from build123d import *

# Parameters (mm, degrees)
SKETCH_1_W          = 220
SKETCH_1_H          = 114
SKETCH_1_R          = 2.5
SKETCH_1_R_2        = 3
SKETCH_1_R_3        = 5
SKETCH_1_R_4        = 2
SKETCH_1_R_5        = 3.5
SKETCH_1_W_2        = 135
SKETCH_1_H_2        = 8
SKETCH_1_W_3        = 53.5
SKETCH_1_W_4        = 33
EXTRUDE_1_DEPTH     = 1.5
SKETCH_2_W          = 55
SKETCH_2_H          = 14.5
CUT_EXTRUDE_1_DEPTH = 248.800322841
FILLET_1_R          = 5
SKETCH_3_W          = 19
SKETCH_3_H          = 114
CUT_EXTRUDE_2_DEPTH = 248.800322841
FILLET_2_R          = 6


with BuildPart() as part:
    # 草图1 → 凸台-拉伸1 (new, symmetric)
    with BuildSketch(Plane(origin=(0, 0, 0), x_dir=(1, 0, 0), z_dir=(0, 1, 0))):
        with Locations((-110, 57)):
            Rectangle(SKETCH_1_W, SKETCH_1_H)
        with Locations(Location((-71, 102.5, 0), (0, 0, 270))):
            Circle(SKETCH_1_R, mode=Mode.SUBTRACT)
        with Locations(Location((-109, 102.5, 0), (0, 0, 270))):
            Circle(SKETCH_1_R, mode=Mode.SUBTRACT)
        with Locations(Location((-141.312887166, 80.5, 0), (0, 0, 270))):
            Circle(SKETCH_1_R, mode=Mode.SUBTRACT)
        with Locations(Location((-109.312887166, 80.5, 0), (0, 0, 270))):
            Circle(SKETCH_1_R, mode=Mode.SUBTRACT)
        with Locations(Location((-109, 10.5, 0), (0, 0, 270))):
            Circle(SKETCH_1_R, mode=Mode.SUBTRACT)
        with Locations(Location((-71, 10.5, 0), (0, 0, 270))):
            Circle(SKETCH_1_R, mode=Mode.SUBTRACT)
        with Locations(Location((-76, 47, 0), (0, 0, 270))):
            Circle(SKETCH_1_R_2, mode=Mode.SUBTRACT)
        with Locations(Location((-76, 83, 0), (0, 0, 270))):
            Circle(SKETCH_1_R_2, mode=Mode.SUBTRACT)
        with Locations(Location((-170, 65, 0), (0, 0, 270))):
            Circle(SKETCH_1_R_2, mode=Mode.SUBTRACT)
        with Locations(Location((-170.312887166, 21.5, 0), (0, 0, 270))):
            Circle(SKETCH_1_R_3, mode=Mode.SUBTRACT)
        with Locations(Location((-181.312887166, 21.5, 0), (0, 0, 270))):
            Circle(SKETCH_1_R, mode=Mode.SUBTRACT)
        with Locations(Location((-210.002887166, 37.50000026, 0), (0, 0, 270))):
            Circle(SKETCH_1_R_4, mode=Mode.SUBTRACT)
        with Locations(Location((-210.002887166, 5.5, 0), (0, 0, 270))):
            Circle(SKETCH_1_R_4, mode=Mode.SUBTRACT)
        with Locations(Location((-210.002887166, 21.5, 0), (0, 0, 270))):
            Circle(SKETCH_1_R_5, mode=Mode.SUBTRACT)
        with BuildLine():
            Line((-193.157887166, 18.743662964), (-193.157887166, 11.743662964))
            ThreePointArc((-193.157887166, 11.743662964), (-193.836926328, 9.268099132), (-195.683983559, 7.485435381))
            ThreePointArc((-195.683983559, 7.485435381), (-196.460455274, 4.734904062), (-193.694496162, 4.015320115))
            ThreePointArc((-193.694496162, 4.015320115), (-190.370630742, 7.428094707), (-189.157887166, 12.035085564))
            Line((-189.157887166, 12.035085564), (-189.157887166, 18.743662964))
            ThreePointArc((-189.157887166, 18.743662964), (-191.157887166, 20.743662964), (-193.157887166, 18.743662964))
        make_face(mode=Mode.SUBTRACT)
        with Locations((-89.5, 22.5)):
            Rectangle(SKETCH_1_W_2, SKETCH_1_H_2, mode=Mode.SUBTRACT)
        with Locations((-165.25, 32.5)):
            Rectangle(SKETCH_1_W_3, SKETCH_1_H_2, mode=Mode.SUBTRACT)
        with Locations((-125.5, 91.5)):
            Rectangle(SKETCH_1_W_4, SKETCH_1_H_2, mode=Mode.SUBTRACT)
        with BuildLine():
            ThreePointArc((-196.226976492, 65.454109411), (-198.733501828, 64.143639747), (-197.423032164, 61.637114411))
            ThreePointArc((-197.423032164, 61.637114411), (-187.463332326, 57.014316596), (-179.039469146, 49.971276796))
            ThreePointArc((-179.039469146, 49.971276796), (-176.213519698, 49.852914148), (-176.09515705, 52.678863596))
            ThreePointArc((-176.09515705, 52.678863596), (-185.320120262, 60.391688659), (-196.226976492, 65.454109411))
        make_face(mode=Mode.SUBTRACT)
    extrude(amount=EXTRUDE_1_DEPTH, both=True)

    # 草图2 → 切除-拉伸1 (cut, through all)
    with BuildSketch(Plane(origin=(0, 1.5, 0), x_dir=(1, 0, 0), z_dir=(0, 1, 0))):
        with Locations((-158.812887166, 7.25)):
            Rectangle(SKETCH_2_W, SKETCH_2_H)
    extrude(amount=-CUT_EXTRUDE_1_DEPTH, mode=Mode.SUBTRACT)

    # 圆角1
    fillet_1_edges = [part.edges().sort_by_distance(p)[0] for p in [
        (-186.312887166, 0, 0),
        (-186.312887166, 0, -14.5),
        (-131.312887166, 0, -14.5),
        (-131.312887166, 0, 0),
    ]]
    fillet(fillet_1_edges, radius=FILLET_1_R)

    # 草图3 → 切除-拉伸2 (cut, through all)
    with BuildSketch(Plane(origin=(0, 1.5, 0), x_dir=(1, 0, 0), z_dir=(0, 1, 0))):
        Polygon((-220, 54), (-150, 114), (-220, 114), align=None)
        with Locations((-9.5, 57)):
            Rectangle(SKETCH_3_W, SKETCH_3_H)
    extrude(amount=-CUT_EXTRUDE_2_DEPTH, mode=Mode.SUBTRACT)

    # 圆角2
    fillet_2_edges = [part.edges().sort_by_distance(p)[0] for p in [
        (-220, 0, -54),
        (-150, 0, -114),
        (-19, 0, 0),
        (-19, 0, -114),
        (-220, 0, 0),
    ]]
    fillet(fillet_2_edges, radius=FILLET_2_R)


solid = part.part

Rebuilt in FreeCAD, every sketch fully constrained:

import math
import FreeCAD as App
import Part
import Sketcher
from FreeCAD import Vector


def edges_at(feature, points):
    """Names of the edges that pass closest to the given points."""
    edges = feature.Shape.Edges
    near = lambda p: min(range(len(edges)), key=lambda i: edges[i].distToShape(Part.Vertex(*p))[0])
    return sorted({f"Edge{near(p) + 1}" for p in points})

doc = App.newDocument("Part")
params = doc.addObject("Spreadsheet::Sheet", "Params")
for row, (alias, value) in enumerate([
    ("sketch1_diameter", "4 mm"),
    ("sketch1_diameter2", "7 mm"),
    ("sketch1_diameter3", "5 mm"),
    ("sketch1_diameter4", "10 mm"),
    ("sketch1_diameter5", "6 mm"),
    ("pad1_length", "3 mm"),
    ("sketch2_width", "55 mm"),
    ("sketch2_height", "14.5 mm"),
    ("fillet_radius", "5 mm"),
    ("sketch3_width", "70 mm"),
    ("sketch3_width2", "19 mm"),
    ("sketch3_height", "60 mm"),
    ("sketch3_height2", "114 mm"),
    ("fillet2_radius", "6 mm"),
], start=1):
    params.set(f"A{row}", alias)
    params.set(f"B{row}", "=" + value)
    params.setAlias(f"B{row}", alias)

body = doc.addObject("PartDesign::Body", "Body")

# Sketch on XZ plane
sketch1 = body.newObject("Sketcher::SketchObject", "Sketch")
sketch1.AttachmentSupport = (doc.getObject("XZ_Plane"), [""])
sketch1.MapMode = "FlatFace"
sketch1.addGeometry([
    Part.LineSegment(Vector(-220, -114, 0), Vector(-220, 0, 0)),  # 0
    Part.LineSegment(Vector(-220, 0, 0), Vector(0, 0, 0)),  # 1
    Part.LineSegment(Vector(0, 0, 0), Vector(0, -114, 0)),  # 2
    Part.LineSegment(Vector(0, -114, 0), Vector(-220, -114, 0)),  # 3
    Part.Circle(Vector(-210.002887, -5.5, 0), Vector(0, 0, 1), 2),  # 4
    Part.LineSegment(Vector(-193.157887, -11.743663, 0), Vector(-193.157887, -18.743663, 0)),  # 5
    Part.ArcOfCircle(Part.Circle(Vector(-191.157887, -18.743663, 0), Vector(0, 0, 1), 2), math.radians(180), math.radians(360)),  # 6
    Part.LineSegment(Vector(-189.157887, -18.743663, 0), Vector(-189.157887, -12.035086, 0)),  # 7
    Part.ArcOfCircle(Part.Circle(Vector(-198.514816, -12.035086, 0), Vector(0, 0, 1), 9.356929), math.radians(0), math.radians(58.991817)),  # 8
    Part.ArcOfCircle(Part.Circle(Vector(-194.725029, -5.729859, 0), Vector(0, 0, 1), 2.00041), math.radians(58.991817), math.radians(241.355141)),  # 9
    Part.ArcOfCircle(Part.Circle(Vector(-198.009971, -11.743663, 0), Vector(0, 0, 1), 4.852084), math.radians(0), math.radians(61.355141)),  # 10
    Part.Circle(Vector(-210.002887, -21.5, 0), Vector(0, 0, 1), 3.5),  # 11
    Part.Circle(Vector(-181.312887, -21.5, 0), Vector(0, 0, 1), 2.5),  # 12
    Part.Circle(Vector(-170.312887, -21.5, 0), Vector(0, 0, 1), 5),  # 13
    Part.Circle(Vector(-210.002887, -37.5, 0), Vector(0, 0, 1), 2),  # 14
    Part.LineSegment(Vector(-138.5, -28.5, 0), Vector(-192, -28.5, 0)),  # 15
    Part.LineSegment(Vector(-192, -28.5, 0), Vector(-192, -36.5, 0)),  # 16
    Part.LineSegment(Vector(-192, -36.5, 0), Vector(-138.5, -36.5, 0)),  # 17
    Part.LineSegment(Vector(-138.5, -36.5, 0), Vector(-138.5, -28.5, 0)),  # 18
    Part.Circle(Vector(-109, -10.5, 0), Vector(0, 0, 1), 2.5),  # 19
    Part.Circle(Vector(-71, -10.5, 0), Vector(0, 0, 1), 2.5),  # 20
    Part.LineSegment(Vector(-22, -18.5, 0), Vector(-157, -18.5, 0)),  # 21
    Part.LineSegment(Vector(-157, -18.5, 0), Vector(-157, -26.5, 0)),  # 22
    Part.LineSegment(Vector(-157, -26.5, 0), Vector(-22, -26.5, 0)),  # 23
    Part.LineSegment(Vector(-22, -26.5, 0), Vector(-22, -18.5, 0)),  # 24
    Part.Circle(Vector(-76, -47, 0), Vector(0, 0, 1), 3),  # 25
    Part.ArcOfCircle(Part.Circle(Vector(-196.825004, -63.545612, 0), Vector(0, 0, 1), 2), math.radians(107.398386), math.radians(287.398386)),  # 26
    Part.ArcOfCircle(Part.Circle(Vector(-210, -21.5, 0), Vector(0, 0, 1), 46.06148), math.radians(-72.601614), math.radians(-42.601614)),  # 27
    Part.ArcOfCircle(Part.Circle(Vector(-177.567313, -51.32507, 0), Vector(0, 0, 1), 2), math.radians(-42.601614), math.radians(137.398386)),  # 28
    Part.ArcOfCircle(Part.Circle(Vector(-210, -21.5, 0), Vector(0, 0, 1), 42.06148), math.radians(-72.601614), math.radians(-42.601614)),  # 29
    Part.Circle(Vector(-170, -65, 0), Vector(0, 0, 1), 3),  # 30
    Part.Circle(Vector(-141.312887, -80.5, 0), Vector(0, 0, 1), 2.5),  # 31
    Part.LineSegment(Vector(-109, -87.5, 0), Vector(-142, -87.5, 0)),  # 32
    Part.LineSegment(Vector(-142, -87.5, 0), Vector(-142, -95.5, 0)),  # 33
    Part.LineSegment(Vector(-142, -95.5, 0), Vector(-109, -95.5, 0)),  # 34
    Part.LineSegment(Vector(-109, -95.5, 0), Vector(-109, -87.5, 0)),  # 35
    Part.Circle(Vector(-109.312887, -80.5, 0), Vector(0, 0, 1), 2.5),  # 36
    Part.Circle(Vector(-76, -83, 0), Vector(0, 0, 1), 3),  # 37
    Part.Circle(Vector(-109, -102.5, 0), Vector(0, 0, 1), 2.5),  # 38
    Part.Circle(Vector(-71, -102.5, 0), Vector(0, 0, 1), 2.5),  # 39
], False)
sketch1.addConstraint([
    Sketcher.Constraint("Coincident", 0, 2, 1, 1),
    Sketcher.Constraint("Coincident", 1, 2, 2, 1),
    Sketcher.Constraint("Coincident", 2, 2, 3, 1),
    Sketcher.Constraint("Coincident", 3, 2, 0, 1),
    Sketcher.Constraint("Tangent", 5, 2, 6, 1),
    Sketcher.Constraint("Tangent", 6, 2, 7, 1),
    Sketcher.Constraint("Tangent", 7, 2, 8, 1),
    Sketcher.Constraint("Tangent", 8, 2, 9, 1),
    Sketcher.Constraint("Tangent", 9, 2, 10, 2),
    Sketcher.Constraint("Tangent", 10, 1, 5, 1),
    Sketcher.Constraint("Coincident", 15, 2, 16, 1),
    Sketcher.Constraint("Coincident", 16, 2, 17, 1),
    Sketcher.Constraint("Coincident", 17, 2, 18, 1),
    Sketcher.Constraint("Coincident", 18, 2, 15, 1),
    Sketcher.Constraint("Coincident", 21, 2, 22, 1),
    Sketcher.Constraint("Coincident", 22, 2, 23, 1),
    Sketcher.Constraint("Coincident", 23, 2, 24, 1),
    Sketcher.Constraint("Coincident", 24, 2, 21, 1),
    Sketcher.Constraint("Tangent", 26, 2, 27, 1),
    Sketcher.Constraint("Tangent", 27, 2, 28, 1),
    Sketcher.Constraint("Tangent", 28, 2, 29, 2),
    Sketcher.Constraint("Tangent", 29, 1, 26, 1),
    Sketcher.Constraint("Coincident", 32, 2, 33, 1),
    Sketcher.Constraint("Coincident", 33, 2, 34, 1),
    Sketcher.Constraint("Coincident", 34, 2, 35, 1),
    Sketcher.Constraint("Coincident", 35, 2, 32, 1),
    Sketcher.Constraint("Vertical", 0),
    Sketcher.Constraint("Horizontal", 1),
    Sketcher.Constraint("Vertical", 2),
    Sketcher.Constraint("Horizontal", 3),
    Sketcher.Constraint("Vertical", 5),
    Sketcher.Constraint("Vertical", 7),
    Sketcher.Constraint("Horizontal", 15),
    Sketcher.Constraint("Vertical", 16),
    Sketcher.Constraint("Horizontal", 17),
    Sketcher.Constraint("Vertical", 18),
    Sketcher.Constraint("Horizontal", 21),
    Sketcher.Constraint("Vertical", 22),
    Sketcher.Constraint("Horizontal", 23),
    Sketcher.Constraint("Vertical", 24),
    Sketcher.Constraint("Horizontal", 32),
    Sketcher.Constraint("Vertical", 33),
    Sketcher.Constraint("Horizontal", 34),
    Sketcher.Constraint("Vertical", 35),
    Sketcher.Constraint("Coincident", 1, 2, -1, 1),
    Sketcher.Constraint("Coincident", 29, 3, 27, 3),
    Sketcher.Constraint("Equal", 4, 6),
    Sketcher.Constraint("Equal", 6, 14),
    Sketcher.Constraint("Equal", 12, 19),
    Sketcher.Constraint("Equal", 19, 20),
    Sketcher.Constraint("Equal", 14, 26),
    Sketcher.Constraint("Equal", 25, 30),
    Sketcher.Constraint("Equal", 20, 31),
    Sketcher.Constraint("Equal", 31, 36),
    Sketcher.Constraint("Equal", 30, 37),
    Sketcher.Constraint("Equal", 36, 38),
    Sketcher.Constraint("Equal", 38, 39),
    Sketcher.Constraint("Horizontal", 11, 3, 12, 3),
    Sketcher.Constraint("Horizontal", 12, 3, 13, 3),
    Sketcher.Constraint("Horizontal", 19, 3, 20, 3),
    Sketcher.Constraint("Horizontal", 13, 3, 27, 3),
    Sketcher.Constraint("Horizontal", 31, 3, 36, 3),
    Sketcher.Constraint("Horizontal", 38, 3, 39, 3),
    Sketcher.Constraint("Vertical", 4, 3, 11, 3),
    Sketcher.Constraint("Vertical", 11, 3, 14, 3),
    Sketcher.Constraint("Vertical", 25, 3, 37, 3),
    Sketcher.Constraint("Vertical", 19, 3, 38, 3),
    Sketcher.Constraint("Vertical", 20, 3, 39, 3),
    Sketcher.Constraint("Vertical", 38, 3, 34, 2),
    Sketcher.Constraint("Equal", 18, 22),
    Sketcher.Constraint("Equal", 24, 33),
    Sketcher.Constraint("Diameter", 4, 4.0),
    Sketcher.Constraint("Diameter", 11, 7.0),
    Sketcher.Constraint("Diameter", 12, 5.0),
    Sketcher.Constraint("Diameter", 13, 10.0),
    Sketcher.Constraint("Diameter", 25, 6.0),
    Sketcher.Constraint("DistanceX", 1, 1, 1, 2, 220.0),
    Sketcher.Constraint("DistanceX", 21, 2, 21, 1, 135.0),
    Sketcher.Constraint("DistanceX", 32, 2, 32, 1, 33.0),
    Sketcher.Constraint("DistanceY", 0, 1, 0, 2, 114.0),
    Sketcher.Constraint("DistanceY", 5, 2, 5, 1, 7.0),
    Sketcher.Constraint("DistanceY", 16, 2, 16, 1, 8.0),
    Sketcher.Constraint("DistanceX", 15, 2, 15, 1, 53.5),
    Sketcher.Constraint("DistanceX", 19, 3, -1, 1, 109.0),
    Sketcher.Constraint("DistanceX", 20, 3, -1, 1, 71.0),
    Sketcher.Constraint("DistanceX", 25, 3, -1, 1, 76.0),
    Sketcher.Constraint("DistanceY", 25, 3, -1, 1, 47.0),
    Sketcher.Constraint("DistanceX", 27, 3, -1, 1, 210.0),
    Sketcher.Constraint("DistanceX", 30, 3, -1, 1, 170.0),
    Sketcher.Constraint("DistanceY", 30, 3, -1, 1, 65.0),
    Sketcher.Constraint("DistanceY", 37, 3, -1, 1, 83.0),
    Sketcher.Constraint("DistanceX", 15, 2, -1, 1, 192.0),
    Sketcher.Constraint("DistanceX", 21, 2, -1, 1, 157.0),
    Sketcher.Constraint("DistanceY", 11, 3, 4, 3, 16.0),
    Sketcher.Constraint("DistanceX", 12, 3, 13, 3, 11.0),
    Sketcher.Constraint("DistanceY", 14, 3, 11, 3, 16.0),
    Sketcher.Constraint("DistanceY", 13, 3, 19, 3, 11.0),
    Sketcher.Constraint("DistanceX", 13, 3, 31, 3, 29.0),
    Sketcher.Constraint("DistanceY", 31, 3, 13, 3, 59.0),
    Sketcher.Constraint("DistanceX", 31, 3, 36, 3, 32.0),
    Sketcher.Constraint("DistanceY", 38, 3, 36, 3, 22.0),
    Sketcher.Constraint("DistanceY", 15, 2, 12, 3, 7.0),
    Sketcher.Constraint("DistanceY", 13, 3, 21, 2, 3.0),
    Sketcher.Constraint("DistanceY", 32, 2, 31, 3, 7.0),
    Sketcher.Constraint("DistanceY", 4, 3, -1, 1, 5.5),
    Sketcher.Constraint("Radius", 8, 9.356929),
    Sketcher.Constraint("Radius", 9, 2.00041),
    Sketcher.Constraint("Radius", 27, 46.06148),
    Sketcher.Constraint("DistanceX", 11, 3, 12, 3, 28.69),
    Sketcher.Constraint("Radius", 10, 4.852084),
    Sketcher.Constraint("DistanceX", 4, 3, 6, 3, 18.845),
    Sketcher.Constraint("DistanceY", 7, 1, 7, 2, 6.708577),
    Sketcher.Constraint("DistanceX", 9, 3, -1, 1, 194.725029),
    Sketcher.Constraint("DistanceY", 9, 3, -1, 1, 5.729859),
    Sketcher.Constraint("DistanceY", 26, 3, -1, 1, 63.545612),
    Sketcher.Constraint("DistanceY", 28, 3, -1, 1, 51.32507),
])
sketch1.setExpression("Constraints[71]", "Params.sketch1_diameter")
sketch1.setExpression("Constraints[72]", "Params.sketch1_diameter2")
sketch1.setExpression("Constraints[73]", "Params.sketch1_diameter3")
sketch1.setExpression("Constraints[74]", "Params.sketch1_diameter4")
sketch1.setExpression("Constraints[75]", "Params.sketch1_diameter5")
pad1 = body.newObject("PartDesign::Pad", "Pad")
pad1.Profile = sketch1
pad1.setExpression("Length", "Params.pad1_length")
pad1.Midplane = True

# Sketch on XZ plane
sketch2 = body.newObject("Sketcher::SketchObject", "Sketch001")
sketch2.AttachmentSupport = (doc.getObject("XZ_Plane"), [""])
sketch2.MapMode = "FlatFace"
sketch2.AttachmentOffset = App.Placement(Vector(0, 0, -1.5), App.Rotation())
sketch2.addGeometry([
    Part.LineSegment(Vector(-186.312887, -14.5, 0), Vector(-186.312887, 0, 0)),
    Part.LineSegment(Vector(-186.312887, 0, 0), Vector(-131.312887, 0, 0)),
    Part.LineSegment(Vector(-131.312887, 0, 0), Vector(-131.312887, -14.5, 0)),
    Part.LineSegment(Vector(-131.312887, -14.5, 0), Vector(-186.312887, -14.5, 0)),
], False)
sketch2.addConstraint([
    Sketcher.Constraint("Coincident", 0, 2, 1, 1),
    Sketcher.Constraint("Coincident", 1, 2, 2, 1),
    Sketcher.Constraint("Coincident", 2, 2, 3, 1),
    Sketcher.Constraint("Coincident", 3, 2, 0, 1),
    Sketcher.Constraint("Vertical", 0),
    Sketcher.Constraint("Horizontal", 1),
    Sketcher.Constraint("Vertical", 2),
    Sketcher.Constraint("Horizontal", 3),
    Sketcher.Constraint("PointOnObject", 0, 2, -1),
    Sketcher.Constraint("DistanceX", 1, 1, 1, 2, 55.0),
    Sketcher.Constraint("DistanceY", 0, 1, 0, 2, 14.5),
    Sketcher.Constraint("DistanceX", 0, 2, -1, 1, 186.312887),
])
sketch2.setExpression("Constraints[9]", "Params.sketch2_width")
sketch2.setExpression("Constraints[10]", "Params.sketch2_height")
pocket1 = body.newObject("PartDesign::Pocket", "Pocket")
pocket1.Profile = sketch2
pocket1.Type = "ThroughAll"
pocket1.Reversed = True
doc.recompute()

fillet = body.newObject("PartDesign::Fillet", "Fillet")
fillet.Base = (pocket1, edges_at(pocket1, [
    (-186.313, 0, 0),
    (-186.313, 0, -14.5),
    (-131.313, 0, -14.5),
    (-131.313, 0, 0),
]))
fillet.setExpression("Radius", "Params.fillet_radius")

# Sketch on XZ plane
sketch3 = body.newObject("Sketcher::SketchObject", "Sketch002")
sketch3.AttachmentSupport = (doc.getObject("XZ_Plane"), [""])
sketch3.MapMode = "FlatFace"
sketch3.AttachmentOffset = App.Placement(Vector(0, 0, -1.5), App.Rotation())
sketch3.addGeometry([
    Part.LineSegment(Vector(-220, -54, 0), Vector(-150, -114, 0)),  # 0
    Part.LineSegment(Vector(-150, -114, 0), Vector(-220, -114, 0)),  # 1
    Part.LineSegment(Vector(-220, -114, 0), Vector(-220, -54, 0)),  # 2
    Part.LineSegment(Vector(-19, -114, 0), Vector(-19, 0, 0)),  # 3
    Part.LineSegment(Vector(-19, 0, 0), Vector(0, 0, 0)),  # 4
    Part.LineSegment(Vector(0, 0, 0), Vector(0, -114, 0)),  # 5
    Part.LineSegment(Vector(0, -114, 0), Vector(-19, -114, 0)),  # 6
], False)
sketch3.addConstraint([
    Sketcher.Constraint("Coincident", 0, 2, 1, 1),
    Sketcher.Constraint("Coincident", 1, 2, 2, 1),
    Sketcher.Constraint("Coincident", 2, 2, 0, 1),
    Sketcher.Constraint("Coincident", 3, 2, 4, 1),
    Sketcher.Constraint("Coincident", 4, 2, 5, 1),
    Sketcher.Constraint("Coincident", 5, 2, 6, 1),
    Sketcher.Constraint("Coincident", 6, 2, 3, 1),
    Sketcher.Constraint("Horizontal", 1),
    Sketcher.Constraint("Vertical", 2),
    Sketcher.Constraint("Vertical", 3),
    Sketcher.Constraint("Horizontal", 4),
    Sketcher.Constraint("Vertical", 5),
    Sketcher.Constraint("Horizontal", 6),
    Sketcher.Constraint("Coincident", 4, 2, -1, 1),
    Sketcher.Constraint("Horizontal", 1, 2, 5, 2),
    Sketcher.Constraint("DistanceX", 1, 2, 1, 1, 70.0),
    Sketcher.Constraint("DistanceX", 4, 1, 4, 2, 19.0),
    Sketcher.Constraint("DistanceY", 2, 1, 2, 2, 60.0),
    Sketcher.Constraint("DistanceY", 3, 1, 3, 2, 114.0),
    Sketcher.Constraint("DistanceX", 0, 2, -1, 1, 150.0),
])
sketch3.setExpression("Constraints[15]", "Params.sketch3_width")
sketch3.setExpression("Constraints[16]", "Params.sketch3_width2")
sketch3.setExpression("Constraints[17]", "Params.sketch3_height")
sketch3.setExpression("Constraints[18]", "Params.sketch3_height2")
pocket2 = body.newObject("PartDesign::Pocket", "Pocket001")
pocket2.Profile = sketch3
pocket2.Type = "ThroughAll"
pocket2.Reversed = True
doc.recompute()

fillet2 = body.newObject("PartDesign::Fillet", "Fillet001")
fillet2.Base = (pocket2, edges_at(pocket2, [
    (-220, 0, -54),
    (-150, 0, -114),
    (-19, 0, 0),
    (-19, 0, -114),
    (-220, 0, 0),
]))
fillet2.setExpression("Radius", "Params.fillet2_radius")

doc.recompute()
